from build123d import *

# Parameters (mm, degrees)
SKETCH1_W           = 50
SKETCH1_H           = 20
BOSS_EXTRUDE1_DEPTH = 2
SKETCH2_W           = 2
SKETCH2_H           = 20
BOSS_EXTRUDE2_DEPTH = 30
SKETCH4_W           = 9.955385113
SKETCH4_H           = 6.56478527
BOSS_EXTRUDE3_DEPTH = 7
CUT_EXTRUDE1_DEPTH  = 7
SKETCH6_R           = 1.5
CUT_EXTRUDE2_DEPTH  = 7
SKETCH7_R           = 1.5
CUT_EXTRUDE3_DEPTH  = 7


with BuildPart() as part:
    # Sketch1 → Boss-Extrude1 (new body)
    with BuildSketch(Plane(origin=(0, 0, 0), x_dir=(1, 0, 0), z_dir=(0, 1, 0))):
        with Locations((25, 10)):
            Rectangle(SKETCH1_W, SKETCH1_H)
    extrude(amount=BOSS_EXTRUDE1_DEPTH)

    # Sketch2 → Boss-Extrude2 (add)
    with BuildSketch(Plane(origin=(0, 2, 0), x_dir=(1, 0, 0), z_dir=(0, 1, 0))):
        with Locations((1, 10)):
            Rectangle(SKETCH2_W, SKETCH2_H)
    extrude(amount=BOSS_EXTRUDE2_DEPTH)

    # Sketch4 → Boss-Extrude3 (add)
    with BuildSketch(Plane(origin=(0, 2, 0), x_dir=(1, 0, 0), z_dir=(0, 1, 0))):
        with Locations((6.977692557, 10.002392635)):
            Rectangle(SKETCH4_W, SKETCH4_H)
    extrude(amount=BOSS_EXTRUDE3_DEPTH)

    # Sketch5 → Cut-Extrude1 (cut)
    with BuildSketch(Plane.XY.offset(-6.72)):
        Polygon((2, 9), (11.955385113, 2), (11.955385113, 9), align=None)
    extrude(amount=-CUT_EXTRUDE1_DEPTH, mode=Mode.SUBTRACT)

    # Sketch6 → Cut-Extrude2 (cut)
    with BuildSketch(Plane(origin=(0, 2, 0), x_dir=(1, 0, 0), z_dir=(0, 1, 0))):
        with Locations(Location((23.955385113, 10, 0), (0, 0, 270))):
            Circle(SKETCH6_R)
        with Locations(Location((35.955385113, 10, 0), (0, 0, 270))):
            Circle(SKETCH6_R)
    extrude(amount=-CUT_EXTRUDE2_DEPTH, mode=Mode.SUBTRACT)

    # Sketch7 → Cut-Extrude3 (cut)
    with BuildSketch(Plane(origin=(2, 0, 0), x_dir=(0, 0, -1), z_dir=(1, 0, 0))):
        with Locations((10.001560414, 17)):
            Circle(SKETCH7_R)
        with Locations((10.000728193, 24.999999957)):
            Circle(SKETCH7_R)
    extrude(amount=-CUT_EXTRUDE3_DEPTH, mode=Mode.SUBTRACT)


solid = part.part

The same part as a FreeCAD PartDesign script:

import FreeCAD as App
import Part
import Sketcher

doc = App.newDocument("Part")
body = doc.addObject("PartDesign::Body", "Body")

sketch1 = doc.addObject("Sketcher::SketchObject", "Sketch")
body.addObject(sketch1)
sketch1.AttachmentSupport = (doc.XZ_Plane, [""])
sketch1.MapMode = "FlatFace"
sketch1.addGeometry([
    Part.LineSegment(App.Vector(0, -20, 0), App.Vector(0, 0, 0)),
    Part.LineSegment(App.Vector(0, 0, 0), App.Vector(50, 0, 0)),
    Part.LineSegment(App.Vector(50, 0, 0), App.Vector(50, -20, 0)),
    Part.LineSegment(App.Vector(50, -20, 0), App.Vector(0, -20, 0)),
], False)
sketch1.addConstraint([
    Sketcher.Constraint("Coincident", 0, 2, 1, 1),
    Sketcher.Constraint("Coincident", 1, 2, 2, 1),
    Sketcher.Constraint("Coincident", 2, 2, 3, 1),
    Sketcher.Constraint("Coincident", 3, 2, 0, 1),
    Sketcher.Constraint("Vertical", 0),
    Sketcher.Constraint("Horizontal", 1),
    Sketcher.Constraint("Vertical", 2),
    Sketcher.Constraint("Horizontal", 3),
    Sketcher.Constraint("Coincident", 0, 2, -1, 1),
    Sketcher.Constraint("DistanceX", 1, 1, 1, 2, 50.0),
    Sketcher.Constraint("DistanceY", 0, 1, 0, 2, 20.0),
])
pad1 = doc.addObject("PartDesign::Pad", "Pad")
body.addObject(pad1)
pad1.Profile = sketch1
pad1.Length = 2
pad1.Reversed = True

sketch2 = doc.addObject("Sketcher::SketchObject", "Sketch001")
body.addObject(sketch2)
sketch2.AttachmentSupport = (doc.XZ_Plane, [""])
sketch2.MapMode = "FlatFace"
sketch2.AttachmentOffset = App.Placement(App.Vector(0, 0, -2), App.Rotation())
sketch2.addGeometry([
    Part.LineSegment(App.Vector(0, -20, 0), App.Vector(0, 0, 0)),
    Part.LineSegment(App.Vector(0, 0, 0), App.Vector(2, 0, 0)),
    Part.LineSegment(App.Vector(2, 0, 0), App.Vector(2, -20, 0)),
    Part.LineSegment(App.Vector(2, -20, 0), App.Vector(0, -20, 0)),
], False)
sketch2.addConstraint([
    Sketcher.Constraint("Coincident", 0, 2, 1, 1),
    Sketcher.Constraint("Coincident", 1, 2, 2, 1),
    Sketcher.Constraint("Coincident", 2, 2, 3, 1),
    Sketcher.Constraint("Coincident", 3, 2, 0, 1),
    Sketcher.Constraint("Vertical", 0),
    Sketcher.Constraint("Horizontal", 1),
    Sketcher.Constraint("Vertical", 2),
    Sketcher.Constraint("Horizontal", 3),
    Sketcher.Constraint("Coincident", 0, 2, -1, 1),
    Sketcher.Constraint("DistanceX", 1, 1, 1, 2, 2.0),
    Sketcher.Constraint("DistanceY", 0, 1, 0, 2, 20.0),
])
pad2 = doc.addObject("PartDesign::Pad", "Pad001")
body.addObject(pad2)
pad2.Profile = sketch2
pad2.Length = 30
pad2.Reversed = True

sketch3 = doc.addObject("Sketcher::SketchObject", "Sketch002")
body.addObject(sketch3)
sketch3.AttachmentSupport = (doc.XZ_Plane, [""])
sketch3.MapMode = "FlatFace"
sketch3.AttachmentOffset = App.Placement(App.Vector(0, 0, -2), App.Rotation())
sketch3.addGeometry([
    Part.LineSegment(App.Vector(2, -13, 0), App.Vector(2, -7, 0)),
    Part.LineSegment(App.Vector(2, -7, 0), App.Vector(12, -7, 0)),
    Part.LineSegment(App.Vector(12, -7, 0), App.Vector(12, -13, 0)),
    Part.LineSegment(App.Vector(12, -13, 0), App.Vector(2, -13, 0)),
], False)
sketch3.addConstraint([
    Sketcher.Constraint("Coincident", 0, 2, 1, 1),
    Sketcher.Constraint("Coincident", 1, 2, 2, 1),
    Sketcher.Constraint("Coincident", 2, 2, 3, 1),
    Sketcher.Constraint("Coincident", 3, 2, 0, 1),
    Sketcher.Constraint("Vertical", 0),
    Sketcher.Constraint("Horizontal", 1),
    Sketcher.Constraint("Vertical", 2),
    Sketcher.Constraint("Horizontal", 3),
    Sketcher.Constraint("DistanceX", -1, 1, 0, 2, 2.0),
    Sketcher.Constraint("DistanceY", 0, 2, -1, 1, 6.72),
    Sketcher.Constraint("DistanceX", 1, 1, 1, 2, 9.955385),
    Sketcher.Constraint("DistanceY", 0, 1, 0, 2, 6.564785),
])
pad3 = doc.addObject("PartDesign::Pad", "Pad002")
body.addObject(pad3)
pad3.Profile = sketch3
pad3.Length = 7
pad3.Reversed = True

sketch4 = doc.addObject("Sketcher::SketchObject", "Sketch003")
body.addObject(sketch4)
sketch4.AttachmentSupport = (doc.XY_Plane, [""])
sketch4.MapMode = "FlatFace"
sketch4.AttachmentOffset = App.Placement(App.Vector(0, 0, -6.72), App.Rotation())
sketch4.addGeometry([
    Part.LineSegment(App.Vector(2, 9, 0), App.Vector(12, 2, 0)),
    Part.LineSegment(App.Vector(12, 2, 0), App.Vector(12, 9, 0)),
    Part.LineSegment(App.Vector(12, 9, 0), App.Vector(2, 9, 0)),
], False)
sketch4.addConstraint([
    Sketcher.Constraint("Coincident", 0, 2, 1, 1),
    Sketcher.Constraint("Coincident", 1, 2, 2, 1),
    Sketcher.Constraint("Coincident", 2, 2, 0, 1),
    Sketcher.Constraint("Vertical", 1),
    Sketcher.Constraint("Horizontal", 2),
    Sketcher.Constraint("DistanceY", 1, 1, 1, 2, 7.0),
    Sketcher.Constraint("DistanceY", -1, 1, 0, 2, 2.0),
    Sketcher.Constraint("DistanceX", -1, 1, 2, 2, 2.0),
    Sketcher.Constraint("DistanceX", 2, 2, 2, 1, 9.955385),
])
pocket1 = doc.addObject("PartDesign::Pocket", "Pocket")
body.addObject(pocket1)
pocket1.Profile = sketch4
pocket1.Length = 7

sketch5 = doc.addObject("Sketcher::SketchObject", "Sketch004")
body.addObject(sketch5)
sketch5.AttachmentSupport = (doc.XZ_Plane, [""])
sketch5.MapMode = "FlatFace"
sketch5.AttachmentOffset = App.Placement(App.Vector(0, 0, -2), App.Rotation())
sketch5.addGeometry([
    Part.Circle(App.Vector(24, -10, 0), App.Vector(0, 0, 1), 1.5),
    Part.Circle(App.Vector(36, -10, 0), App.Vector(0, 0, 1), 1.5),
], False)
sketch5.addConstraint([
    Sketcher.Constraint("Equal", 0, 1),
    Sketcher.Constraint("Horizontal", 0, 3, 1, 3),
    Sketcher.Constraint("Diameter", 0, 3.0),
    Sketcher.Constraint("DistanceY", 0, 3, -1, 1, 10.0),
    Sketcher.Constraint("DistanceX", 0, 3, 1, 3, 12.0),
    Sketcher.Constraint("DistanceX", -1, 1, 0, 3, 23.955385),
])
pocket2 = doc.addObject("PartDesign::Pocket", "Pocket001")
body.addObject(pocket2)
pocket2.Profile = sketch5
pocket2.Length = 7
pocket2.Reversed = True

sketch6 = doc.addObject("Sketcher::SketchObject", "Sketch005")
body.addObject(sketch6)
sketch6.AttachmentSupport = (doc.YZ_Plane, [""])
sketch6.MapMode = "FlatFace"
sketch6.AttachmentOffset = App.Placement(App.Vector(0, 0, 2), App.Rotation())
sketch6.addGeometry([
    Part.Circle(App.Vector(17, -10, 0), App.Vector(0, 0, 1), 1.5),
    Part.Circle(App.Vector(25, -10, 0), App.Vector(0, 0, 1), 1.5),
], False)
sketch6.addConstraint([
    Sketcher.Constraint("Equal", 0, 1),
    Sketcher.Constraint("Diameter", 0, 3.0),
    Sketcher.Constraint("DistanceX", -1, 1, 0, 3, 17.0),
    Sketcher.Constraint("DistanceX", -1, 1, 1, 3, 25.0),
    Sketcher.Constraint("DistanceY", 0, 3, -1, 1, 10.00156),
    Sketcher.Constraint("DistanceY", 1, 3, -1, 1, 10.000728),
])
pocket3 = doc.addObject("PartDesign::Pocket", "Pocket002")
body.addObject(pocket3)
pocket3.Profile = sketch6
pocket3.Length = 7

doc.recompute()
